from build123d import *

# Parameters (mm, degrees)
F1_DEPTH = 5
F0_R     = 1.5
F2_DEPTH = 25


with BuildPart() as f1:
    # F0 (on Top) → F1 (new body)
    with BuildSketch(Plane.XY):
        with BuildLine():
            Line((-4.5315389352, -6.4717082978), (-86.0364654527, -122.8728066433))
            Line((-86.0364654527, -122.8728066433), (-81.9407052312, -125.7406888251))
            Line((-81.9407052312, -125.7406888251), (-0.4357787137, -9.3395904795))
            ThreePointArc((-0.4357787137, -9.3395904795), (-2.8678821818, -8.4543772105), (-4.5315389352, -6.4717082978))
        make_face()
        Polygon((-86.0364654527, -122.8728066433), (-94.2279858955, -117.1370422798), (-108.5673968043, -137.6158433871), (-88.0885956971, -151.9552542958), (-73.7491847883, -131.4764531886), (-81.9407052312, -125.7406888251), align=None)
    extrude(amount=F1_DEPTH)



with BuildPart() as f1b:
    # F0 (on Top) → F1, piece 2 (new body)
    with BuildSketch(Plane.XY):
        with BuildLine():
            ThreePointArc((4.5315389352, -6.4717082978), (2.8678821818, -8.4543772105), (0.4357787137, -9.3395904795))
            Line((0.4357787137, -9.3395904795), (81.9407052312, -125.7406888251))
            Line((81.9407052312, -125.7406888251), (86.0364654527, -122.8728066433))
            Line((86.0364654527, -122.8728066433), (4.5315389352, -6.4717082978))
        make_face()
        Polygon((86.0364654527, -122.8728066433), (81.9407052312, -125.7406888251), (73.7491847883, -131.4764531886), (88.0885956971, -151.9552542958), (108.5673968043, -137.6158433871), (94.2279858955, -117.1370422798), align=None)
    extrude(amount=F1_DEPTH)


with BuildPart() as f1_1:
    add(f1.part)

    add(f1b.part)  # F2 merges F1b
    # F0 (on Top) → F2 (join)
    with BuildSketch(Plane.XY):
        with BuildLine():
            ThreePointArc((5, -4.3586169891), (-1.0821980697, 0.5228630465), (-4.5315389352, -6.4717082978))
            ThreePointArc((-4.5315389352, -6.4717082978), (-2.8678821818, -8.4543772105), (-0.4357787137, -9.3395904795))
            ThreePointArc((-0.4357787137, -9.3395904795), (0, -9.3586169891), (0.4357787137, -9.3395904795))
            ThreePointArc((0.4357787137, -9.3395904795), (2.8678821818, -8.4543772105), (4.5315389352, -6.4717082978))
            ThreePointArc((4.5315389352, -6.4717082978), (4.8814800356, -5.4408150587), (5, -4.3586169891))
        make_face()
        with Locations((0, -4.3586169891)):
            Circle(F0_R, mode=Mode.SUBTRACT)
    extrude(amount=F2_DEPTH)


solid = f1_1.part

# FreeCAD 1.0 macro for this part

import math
import FreeCAD as App
import Part
import Sketcher
Q = App.Units.Quantity

doc = App.newDocument("Part")
body = doc.addObject("PartDesign::Body", "Body")

# Sketch on XY plane
sketch1 = doc.addObject("Sketcher::SketchObject", "Sketch")
body.addObject(sketch1)
sketch1.AttachmentSupport = (doc.XY_Plane, [""])
sketch1.MapMode = "FlatFace"
sketch1.addGeometry([
    Part.LineSegment(App.Vector(-4.531539, -6.471708, 0), App.Vector(-86.036465, -122.872807, 0)),  # 0
    Part.LineSegment(App.Vector(-86.036465, -122.872807, 0), App.Vector(-94.227986, -117.137042, 0)),  # 1
    Part.LineSegment(App.Vector(-94.227986, -117.137042, 0), App.Vector(-108.567397, -137.615843, 0)),  # 2
    Part.LineSegment(App.Vector(-108.567397, -137.615843, 0), App.Vector(-88.088596, -151.955254, 0)),  # 3
    Part.LineSegment(App.Vector(-88.088596, -151.955254, 0), App.Vector(-73.749185, -131.476453, 0)),  # 4
    Part.LineSegment(App.Vector(-73.749185, -131.476453, 0), App.Vector(-81.940705, -125.740689, 0)),  # 5
    Part.LineSegment(App.Vector(-81.940705, -125.740689, 0), App.Vector(-0.435779, -9.33959, 0)),  # 6
    Part.ArcOfCircle(Part.Circle(App.Vector(0, -4.358617, 0), App.Vector(0, 0, 1), 5), math.radians(-155), math.radians(-95)),  # 7
], False)
sketch1.addConstraint([
    Sketcher.Constraint("Coincident", 0, 2, 1, 1),
    Sketcher.Constraint("Coincident", 1, 2, 2, 1),
    Sketcher.Constraint("Coincident", 2, 2, 3, 1),
    Sketcher.Constraint("Coincident", 3, 2, 4, 1),
    Sketcher.Constraint("Coincident", 4, 2, 5, 1),
    Sketcher.Constraint("Coincident", 5, 2, 6, 1),
    Sketcher.Constraint("Coincident", 6, 2, 7, 2),
    Sketcher.Constraint("Coincident", 7, 1, 0, 1),
    Sketcher.Constraint("PointOnObject", 7, 3, -2),
    Sketcher.Constraint("Perpendicular", 0, 1),
    Sketcher.Constraint("Perpendicular", 1, 2),
    Sketcher.Constraint("Perpendicular", 2, 3),
    Sketcher.Constraint("Perpendicular", 3, 4),
    Sketcher.Constraint("Perpendicular", 4, 5),
    Sketcher.Constraint("Perpendicular", 5, 6),
    Sketcher.Constraint("Equal", 2, 3),
    Sketcher.Constraint("Equal", 3, 4),
    Sketcher.Constraint("Equal", 1, 5),
    Sketcher.Constraint("Equal", 0, 6),
    Sketcher.Constraint("Radius", 7, 5.0),
    Sketcher.Constraint("Angle", 0, Q("-125 deg")),
    Sketcher.Constraint("Distance", 1, 10.0),
    Sketcher.Constraint("Distance", 2, 25.0),
    Sketcher.Constraint("DistanceY", 5, 2, 6, 2, 116.401098),
    Sketcher.Constraint("DistanceY", 5, 2, -1, 1, 125.740689),
])
pad1 = doc.addObject("PartDesign::Pad", "Pad")
body.addObject(pad1)
pad1.Profile = sketch1
pad1.Length = 5
body2 = doc.addObject("PartDesign::Body", "Body001")

# Sketch on XY plane
sketch2 = doc.addObject("Sketcher::SketchObject", "Sketch001")
body2.addObject(sketch2)
sketch2.AttachmentSupport = (doc.getObject("XY_Plane001"), [""])
sketch2.MapMode = "FlatFace"
sketch2.addGeometry([
    Part.ArcOfCircle(Part.Circle(App.Vector(0, -4.358617, 0), App.Vector(0, 0, 1), 5), math.radians(-85), math.radians(-25)),  # 0
    Part.LineSegment(App.Vector(0.435779, -9.33959, 0), App.Vector(81.940705, -125.740689, 0)),  # 1
    Part.LineSegment(App.Vector(81.940705, -125.740689, 0), App.Vector(73.749185, -131.476453, 0)),  # 2
    Part.LineSegment(App.Vector(73.749185, -131.476453, 0), App.Vector(88.088596, -151.955254, 0)),  # 3
    Part.LineSegment(App.Vector(88.088596, -151.955254, 0), App.Vector(108.567397, -137.615843, 0)),  # 4
    Part.LineSegment(App.Vector(108.567397, -137.615843, 0), App.Vector(94.227986, -117.137042, 0)),  # 5
    Part.LineSegment(App.Vector(94.227986, -117.137042, 0), App.Vector(86.036465, -122.872807, 0)),  # 6
    Part.LineSegment(App.Vector(86.036465, -122.872807, 0), App.Vector(4.531539, -6.471708, 0)),  # 7
], False)
sketch2.addConstraint([
    Sketcher.Constraint("Coincident", 0, 1, 1, 1),
    Sketcher.Constraint("Coincident", 1, 2, 2, 1),
    Sketcher.Constraint("Coincident", 2, 2, 3, 1),
    Sketcher.Constraint("Coincident", 3, 2, 4, 1),
    Sketcher.Constraint("Coincident", 4, 2, 5, 1),
    Sketcher.Constraint("Coincident", 5, 2, 6, 1),
    Sketcher.Constraint("Coincident", 6, 2, 7, 1),
    Sketcher.Constraint("Coincident", 7, 2, 0, 2),
    Sketcher.Constraint("PointOnObject", 0, 3, -2),
    Sketcher.Constraint("Perpendicular", 1, 2),
    Sketcher.Constraint("Perpendicular", 2, 3),
    Sketcher.Constraint("Perpendicular", 3, 4),
    Sketcher.Constraint("Perpendicular", 4, 5),
    Sketcher.Constraint("Perpendicular", 5, 6),
    Sketcher.Constraint("Perpendicular", 6, 7),
    Sketcher.Constraint("Equal", 3, 4),
    Sketcher.Constraint("Equal", 4, 5),
    Sketcher.Constraint("Equal", 2, 6),
    Sketcher.Constraint("Equal", 1, 7),
    Sketcher.Constraint("Radius", 0, 5.0),
    Sketcher.Constraint("Angle", 1, Q("-55 deg")),
    Sketcher.Constraint("Distance", 2, 10.0),
    Sketcher.Constraint("Distance", 3, 25.0),
    Sketcher.Constraint("DistanceY", 1, 2, 0, 1, 116.401098),
    Sketcher.Constraint("DistanceY", 0, 1, -1, 1, 9.33959),
])
pad2 = doc.addObject("PartDesign::Pad", "Pad001")
body2.addObject(pad2)
pad2.Profile = sketch2
pad2.Length = 5
body.AllowCompound = True
doc.recompute()

boolean = doc.addObject("PartDesign::Boolean", "Boolean")
body.addObject(boolean)
boolean.Type = "Fuse"
boolean.addObjects([body2])

# Sketch on XY plane
sketch3 = doc.addObject("Sketcher::SketchObject", "Sketch002")
body.addObject(sketch3)
sketch3.AttachmentSupport = (doc.XY_Plane, [""])
sketch3.MapMode = "FlatFace"
sketch3.addGeometry([
    Part.ArcOfCircle(Part.Circle(App.Vector(0, -4.358617, 0), App.Vector(0, 0, 1), 5), math.radians(0), math.radians(205)),  # 0
    Part.ArcOfCircle(Part.Circle(App.Vector(0, -4.358617, 0), App.Vector(0, 0, 1), 5), math.radians(-155), math.radians(-95)),  # 1
    Part.ArcOfCircle(Part.Circle(App.Vector(0, -4.358617, 0), App.Vector(0, 0, 1), 5), math.radians(-95), math.radians(-85)),  # 2
    Part.ArcOfCircle(Part.Circle(App.Vector(0, -4.358617, 0), App.Vector(0, 0, 1), 5), math.radians(-85), math.radians(-25)),  # 3
    Part.ArcOfCircle(Part.Circle(App.Vector(0, -4.358617, 0), App.Vector(0, 0, 1), 5), math.radians(-25), math.radians(0)),  # 4
    Part.Circle(App.Vector(0, -4.358617, 0), App.Vector(0, 0, 1), 1.5),  # 5
], False)
sketch3.addConstraint([
    Sketcher.Constraint("Tangent", 0, 2, 1, 1),
    Sketcher.Constraint("Tangent", 1, 2, 2, 1),
    Sketcher.Constraint("Tangent", 2, 2, 3, 1),
    Sketcher.Constraint("Tangent", 3, 2, 4, 1),
    Sketcher.Constraint("Tangent", 4, 2, 0, 1),
    Sketcher.Constraint("Coincident", 2, 3, 0, 3),
    Sketcher.Constraint("Coincident", 5, 3, 0, 3),
    Sketcher.Constraint("Symmetric", 1, 2, 2, 2, -2),
    Sketcher.Constraint("Horizontal", 0, 2, 3, 2),
    Sketcher.Constraint("Horizontal", 5, 3, 4, 2),
    Sketcher.Constraint("Diameter", 5, 3.0),
    Sketcher.Constraint("Radius", 0, 5.0),
    Sketcher.Constraint("DistanceX", 0, 2, -1, 1, 4.531539),
    Sketcher.Constraint("DistanceY", 0, 2, -1, 1, 6.471708),
    Sketcher.Constraint("DistanceX", 1, 2, -1, 1, 0.435779),
])
pad3 = doc.addObject("PartDesign::Pad", "Pad002")
body.addObject(pad3)
pad3.Profile = sketch3
pad3.Length = 25

doc.recompute()
